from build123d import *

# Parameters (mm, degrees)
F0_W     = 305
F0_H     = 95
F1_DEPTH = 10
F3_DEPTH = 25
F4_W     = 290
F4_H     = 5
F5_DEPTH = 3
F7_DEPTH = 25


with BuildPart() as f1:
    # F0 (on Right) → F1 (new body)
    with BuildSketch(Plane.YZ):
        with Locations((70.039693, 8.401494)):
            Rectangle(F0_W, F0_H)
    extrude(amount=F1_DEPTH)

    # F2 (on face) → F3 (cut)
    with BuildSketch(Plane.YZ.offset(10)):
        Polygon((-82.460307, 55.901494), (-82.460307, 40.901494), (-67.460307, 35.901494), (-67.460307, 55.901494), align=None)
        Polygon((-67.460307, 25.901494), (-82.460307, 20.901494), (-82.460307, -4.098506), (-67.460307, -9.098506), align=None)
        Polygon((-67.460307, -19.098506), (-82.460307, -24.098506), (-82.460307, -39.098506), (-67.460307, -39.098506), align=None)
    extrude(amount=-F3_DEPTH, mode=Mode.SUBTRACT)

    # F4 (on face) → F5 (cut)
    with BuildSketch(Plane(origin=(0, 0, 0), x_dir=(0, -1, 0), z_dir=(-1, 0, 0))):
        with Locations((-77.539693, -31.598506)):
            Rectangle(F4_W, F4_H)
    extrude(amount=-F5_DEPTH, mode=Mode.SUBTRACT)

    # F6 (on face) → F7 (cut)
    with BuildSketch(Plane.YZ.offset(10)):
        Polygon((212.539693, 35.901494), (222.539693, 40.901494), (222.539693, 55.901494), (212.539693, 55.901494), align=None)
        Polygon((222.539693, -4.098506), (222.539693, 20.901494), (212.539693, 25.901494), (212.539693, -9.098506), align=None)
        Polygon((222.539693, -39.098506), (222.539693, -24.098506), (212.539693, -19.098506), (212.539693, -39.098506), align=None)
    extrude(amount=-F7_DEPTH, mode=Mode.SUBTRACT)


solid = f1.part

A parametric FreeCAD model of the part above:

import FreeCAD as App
import Part
import Sketcher
Q = App.Units.Quantity

doc = App.newDocument("Part")
body = doc.addObject("PartDesign::Body", "Body")

# Sketch on YZ plane
sketch1 = doc.addObject("Sketcher::SketchObject", "Sketch")
body.addObject(sketch1)
sketch1.AttachmentSupport = (doc.YZ_Plane, [""])
sketch1.MapMode = "FlatFace"
sketch1.addGeometry([
    Part.LineSegment(App.Vector(-82, 56, 0), App.Vector(-82, -39, 0)),
    Part.LineSegment(App.Vector(-82, -39, 0), App.Vector(223, -39, 0)),
    Part.LineSegment(App.Vector(223, -39, 0), App.Vector(223, 56, 0)),
    Part.LineSegment(App.Vector(223, 56, 0), App.Vector(-82, 56, 0)),
], False)
sketch1.addConstraint([
    Sketcher.Constraint("Coincident", 0, 2, 1, 1),
    Sketcher.Constraint("Coincident", 1, 2, 2, 1),
    Sketcher.Constraint("Coincident", 2, 2, 3, 1),
    Sketcher.Constraint("Coincident", 3, 2, 0, 1),
    Sketcher.Constraint("Vertical", 0),
    Sketcher.Constraint("Horizontal", 1),
    Sketcher.Constraint("Vertical", 2),
    Sketcher.Constraint("Horizontal", 3),
    Sketcher.Constraint("DistanceX", 1, 1, 1, 2, Q("305 mm")),
    Sketcher.Constraint("DistanceY", 0, 2, 0, 1, Q("95 mm")),
    Sketcher.Constraint("DistanceX", 0, 2, -1, 1, Q("82.460307 mm")),
    Sketcher.Constraint("DistanceY", 0, 2, -1, 1, Q("39.098506 mm")),
])
pad1 = doc.addObject("PartDesign::Pad", "Pad")
body.addObject(pad1)
pad1.Profile = sketch1
pad1.Length = 10

# Sketch on YZ plane
sketch2 = doc.addObject("Sketcher::SketchObject", "Sketch001")
body.addObject(sketch2)
sketch2.AttachmentSupport = (doc.YZ_Plane, [""])
sketch2.MapMode = "FlatFace"
sketch2.AttachmentOffset = App.Placement(App.Vector(0, 0, 10), App.Rotation())
sketch2.addGeometry([
    Part.LineSegment(App.Vector(-82, 56, 0), App.Vector(-82, 41, 0)),  # 0
    Part.LineSegment(App.Vector(-82, 41, 0), App.Vector(-67, 36, 0)),  # 1
    Part.LineSegment(App.Vector(-67, 36, 0), App.Vector(-67, 56, 0)),  # 2
    Part.LineSegment(App.Vector(-67, 56, 0), App.Vector(-82, 56, 0)),  # 3
    Part.LineSegment(App.Vector(-67, 26, 0), App.Vector(-82, 21, 0)),  # 4
    Part.LineSegment(App.Vector(-82, 21, 0), App.Vector(-82, -4, 0)),  # 5
    Part.LineSegment(App.Vector(-82, -4, 0), App.Vector(-67, -9, 0)),  # 6
    Part.LineSegment(App.Vector(-67, -9, 0), App.Vector(-67, 26, 0)),  # 7
    Part.LineSegment(App.Vector(-67, -19, 0), App.Vector(-82, -24, 0)),  # 8
    Part.LineSegment(App.Vector(-82, -24, 0), App.Vector(-82, -39, 0)),  # 9
    Part.LineSegment(App.Vector(-82, -39, 0), App.Vector(-67, -39, 0)),  # 10
    Part.LineSegment(App.Vector(-67, -39, 0), App.Vector(-67, -19, 0)),  # 11
], False)
sketch2.addConstraint([
    Sketcher.Constraint("Coincident", 0, 2, 1, 1),
    Sketcher.Constraint("Coincident", 1, 2, 2, 1),
    Sketcher.Constraint("Coincident", 2, 2, 3, 1),
    Sketcher.Constraint("Coincident", 3, 2, 0, 1),
    Sketcher.Constraint("Coincident", 4, 2, 5, 1),
    Sketcher.Constraint("Coincident", 5, 2, 6, 1),
    Sketcher.Constraint("Coincident", 6, 2, 7, 1),
    Sketcher.Constraint("Coincident", 7, 2, 4, 1),
    Sketcher.Constraint("Coincident", 8, 2, 9, 1),
    Sketcher.Constraint("Coincident", 9, 2, 10, 1),
    Sketcher.Constraint("Coincident", 10, 2, 11, 1),
    Sketcher.Constraint("Coincident", 11, 2, 8, 1),
    Sketcher.Constraint("Vertical", 0),
    Sketcher.Constraint("Vertical", 2),
    Sketcher.Constraint("Horizontal", 3),
    Sketcher.Constraint("Vertical", 5),
    Sketcher.Constraint("Vertical", 7),
    Sketcher.Constraint("Vertical", 9),
    Sketcher.Constraint("Horizontal", 10),
    Sketcher.Constraint("Vertical", 11),
    Sketcher.Constraint("Parallel", 1, 6),
    Sketcher.Constraint("Parallel", 4, 8),
    Sketcher.Constraint("Vertical", 3, 2, 4, 2),
    Sketcher.Constraint("Vertical", 2, 2, 6, 2),
    Sketcher.Constraint("Vertical", 5, 2, 8, 2),
    Sketcher.Constraint("Vertical", 7, 2, 10, 2),
    Sketcher.Constraint("Equal", 10, 0),
    Sketcher.Constraint("Equal", 0, 9),
    Sketcher.Constraint("Equal", 2, 11),
    Sketcher.Constraint("DistanceX", 3, 2, 3, 1, Q("15 mm")),
    Sketcher.Constraint("DistanceY", 2, 1, 2, 2, Q("20 mm")),
    Sketcher.Constraint("DistanceY", 5, 2, 5, 1, Q("25 mm")),
    Sketcher.Constraint("DistanceY", 4, 2, 0, 2, Q("20 mm")),
    Sketcher.Constraint("DistanceY", 8, 2, 5, 2, Q("20 mm")),
    Sketcher.Constraint("DistanceX", 0, 2, -1, 1, Q("82.460307 mm")),
    Sketcher.Constraint("DistanceY", -1, 1, 0, 2, Q("40.901494 mm")),
])
pocket1 = doc.addObject("PartDesign::Pocket", "Pocket")
body.addObject(pocket1)
pocket1.Profile = sketch2
pocket1.Length = 25

# Sketch on YZ plane
sketch3 = doc.addObject("Sketcher::SketchObject", "Sketch002")
body.addObject(sketch3)
sketch3.AttachmentSupport = (doc.YZ_Plane, [""])
sketch3.MapMode = "FlatFace"
sketch3.addGeometry([
    Part.LineSegment(App.Vector(223, -29, 0), App.Vector(223, -34, 0)),
    Part.LineSegment(App.Vector(223, -34, 0), App.Vector(-67, -34, 0)),
    Part.LineSegment(App.Vector(-67, -34, 0), App.Vector(-67, -29, 0)),
    Part.LineSegment(App.Vector(-67, -29, 0), App.Vector(223, -29, 0)),
], False)
sketch3.addConstraint([
    Sketcher.Constraint("Coincident", 0, 2, 1, 1),
    Sketcher.Constraint("Coincident", 1, 2, 2, 1),
    Sketcher.Constraint("Coincident", 2, 2, 3, 1),
    Sketcher.Constraint("Coincident", 3, 2, 0, 1),
    Sketcher.Constraint("Vertical", 0),
    Sketcher.Constraint("Horizontal", 1),
    Sketcher.Constraint("Vertical", 2),
    Sketcher.Constraint("Horizontal", 3),
    Sketcher.Constraint("DistanceX", 1, 2, 1, 1, Q("290 mm")),
    Sketcher.Constraint("DistanceY", 0, 2, 0, 1, Q("5 mm")),
    Sketcher.Constraint("DistanceX", -1, 1, 0, 2, Q("222.539693 mm")),
    Sketcher.Constraint("DistanceY", 0, 2, -1, 1, Q("34.098506 mm")),
])
pocket2 = doc.addObject("PartDesign::Pocket", "Pocket001")
body.addObject(pocket2)
pocket2.Profile = sketch3
pocket2.Length = 3
pocket2.Reversed = True

# Sketch on YZ plane
sketch4 = doc.addObject("Sketcher::SketchObject", "Sketch003")
body.addObject(sketch4)
sketch4.AttachmentSupport = (doc.YZ_Plane, [""])
sketch4.MapMode = "FlatFace"
sketch4.AttachmentOffset = App.Placement(App.Vector(0, 0, 10), App.Rotation())
sketch4.addGeometry([
    Part.LineSegment(App.Vector(213, 36, 0), App.Vector(223, 41, 0)),  # 0
    Part.LineSegment(App.Vector(223, 41, 0), App.Vector(223, 56, 0)),  # 1
    Part.LineSegment(App.Vector(223, 56, 0), App.Vector(213, 56, 0)),  # 2
    Part.LineSegment(App.Vector(213, 56, 0), App.Vector(213, 36, 0)),  # 3
    Part.LineSegment(App.Vector(223, -4, 0), App.Vector(223, 21, 0)),  # 4
    Part.LineSegment(App.Vector(223, 21, 0), App.Vector(213, 26, 0)),  # 5
    Part.LineSegment(App.Vector(213, 26, 0), App.Vector(213, -9, 0)),  # 6
    Part.LineSegment(App.Vector(213, -9, 0), App.Vector(223, -4, 0)),  # 7
    Part.LineSegment(App.Vector(223, -39, 0), App.Vector(223, -24, 0)),  # 8
    Part.LineSegment(App.Vector(223, -24, 0), App.Vector(213, -19, 0)),  # 9
    Part.LineSegment(App.Vector(213, -19, 0), App.Vector(213, -39, 0)),  # 10
    Part.LineSegment(App.Vector(213, -39, 0), App.Vector(223, -39, 0)),  # 11
], False)
sketch4.addConstraint([
    Sketcher.Constraint("Coincident", 0, 2, 1, 1),
    Sketcher.Constraint("Coincident", 1, 2, 2, 1),
    Sketcher.Constraint("Coincident", 2, 2, 3, 1),
    Sketcher.Constraint("Coincident", 3, 2, 0, 1),
    Sketcher.Constraint("Coincident", 4, 2, 5, 1),
    Sketcher.Constraint("Coincident", 5, 2, 6, 1),
    Sketcher.Constraint("Coincident", 6, 2, 7, 1),
    Sketcher.Constraint("Coincident", 7, 2, 4, 1),
    Sketcher.Constraint("Coincident", 8, 2, 9, 1),
    Sketcher.Constraint("Coincident", 9, 2, 10, 1),
    Sketcher.Constraint("Coincident", 10, 2, 11, 1),
    Sketcher.Constraint("Coincident", 11, 2, 8, 1),
    Sketcher.Constraint("Vertical", 1),
    Sketcher.Constraint("Horizontal", 2),
    Sketcher.Constraint("Vertical", 3),
    Sketcher.Constraint("Vertical", 4),
    Sketcher.Constraint("Vertical", 6),
    Sketcher.Constraint("Vertical", 8),
    Sketcher.Constraint("Vertical", 10),
    Sketcher.Constraint("Horizontal", 11),
    Sketcher.Constraint("Parallel", 0, 7),
    Sketcher.Constraint("Parallel", 5, 9),
    Sketcher.Constraint("Vertical", 1, 2, 4, 2),
    Sketcher.Constraint("Vertical", 3, 2, 5, 2),
    Sketcher.Constraint("Vertical", 7, 2, 8, 2),
    Sketcher.Constraint("Vertical", 6, 2, 9, 2),
    Sketcher.Constraint("Equal", 1, 8),
    Sketcher.Constraint("Equal", 3, 10),
    Sketcher.Constraint("DistanceX", 2, 2, 2, 1, Q("10 mm")),
    Sketcher.Constraint("DistanceY", 1, 1, 1, 2, Q("15 mm")),
    Sketcher.Constraint("DistanceY", 3, 2, 3, 1, Q("20 mm")),
    Sketcher.Constraint("DistanceY", 4, 1, 4, 2, Q("25 mm")),
    Sketcher.Constraint("DistanceY", 4, 2, 3, 2, Q("15 mm")),
    Sketcher.Constraint("DistanceY", 8, 2, 6, 2, Q("15 mm")),
    Sketcher.Constraint("DistanceX", -1, 1, 0, 2, Q("222.539693 mm")),
    Sketcher.Constraint("DistanceY", -1, 1, 0, 2, Q("40.901494 mm")),
])
pocket3 = doc.addObject("PartDesign::Pocket", "Pocket002")
body.addObject(pocket3)
pocket3.Profile = sketch4
pocket3.Length = 25

doc.recompute()
